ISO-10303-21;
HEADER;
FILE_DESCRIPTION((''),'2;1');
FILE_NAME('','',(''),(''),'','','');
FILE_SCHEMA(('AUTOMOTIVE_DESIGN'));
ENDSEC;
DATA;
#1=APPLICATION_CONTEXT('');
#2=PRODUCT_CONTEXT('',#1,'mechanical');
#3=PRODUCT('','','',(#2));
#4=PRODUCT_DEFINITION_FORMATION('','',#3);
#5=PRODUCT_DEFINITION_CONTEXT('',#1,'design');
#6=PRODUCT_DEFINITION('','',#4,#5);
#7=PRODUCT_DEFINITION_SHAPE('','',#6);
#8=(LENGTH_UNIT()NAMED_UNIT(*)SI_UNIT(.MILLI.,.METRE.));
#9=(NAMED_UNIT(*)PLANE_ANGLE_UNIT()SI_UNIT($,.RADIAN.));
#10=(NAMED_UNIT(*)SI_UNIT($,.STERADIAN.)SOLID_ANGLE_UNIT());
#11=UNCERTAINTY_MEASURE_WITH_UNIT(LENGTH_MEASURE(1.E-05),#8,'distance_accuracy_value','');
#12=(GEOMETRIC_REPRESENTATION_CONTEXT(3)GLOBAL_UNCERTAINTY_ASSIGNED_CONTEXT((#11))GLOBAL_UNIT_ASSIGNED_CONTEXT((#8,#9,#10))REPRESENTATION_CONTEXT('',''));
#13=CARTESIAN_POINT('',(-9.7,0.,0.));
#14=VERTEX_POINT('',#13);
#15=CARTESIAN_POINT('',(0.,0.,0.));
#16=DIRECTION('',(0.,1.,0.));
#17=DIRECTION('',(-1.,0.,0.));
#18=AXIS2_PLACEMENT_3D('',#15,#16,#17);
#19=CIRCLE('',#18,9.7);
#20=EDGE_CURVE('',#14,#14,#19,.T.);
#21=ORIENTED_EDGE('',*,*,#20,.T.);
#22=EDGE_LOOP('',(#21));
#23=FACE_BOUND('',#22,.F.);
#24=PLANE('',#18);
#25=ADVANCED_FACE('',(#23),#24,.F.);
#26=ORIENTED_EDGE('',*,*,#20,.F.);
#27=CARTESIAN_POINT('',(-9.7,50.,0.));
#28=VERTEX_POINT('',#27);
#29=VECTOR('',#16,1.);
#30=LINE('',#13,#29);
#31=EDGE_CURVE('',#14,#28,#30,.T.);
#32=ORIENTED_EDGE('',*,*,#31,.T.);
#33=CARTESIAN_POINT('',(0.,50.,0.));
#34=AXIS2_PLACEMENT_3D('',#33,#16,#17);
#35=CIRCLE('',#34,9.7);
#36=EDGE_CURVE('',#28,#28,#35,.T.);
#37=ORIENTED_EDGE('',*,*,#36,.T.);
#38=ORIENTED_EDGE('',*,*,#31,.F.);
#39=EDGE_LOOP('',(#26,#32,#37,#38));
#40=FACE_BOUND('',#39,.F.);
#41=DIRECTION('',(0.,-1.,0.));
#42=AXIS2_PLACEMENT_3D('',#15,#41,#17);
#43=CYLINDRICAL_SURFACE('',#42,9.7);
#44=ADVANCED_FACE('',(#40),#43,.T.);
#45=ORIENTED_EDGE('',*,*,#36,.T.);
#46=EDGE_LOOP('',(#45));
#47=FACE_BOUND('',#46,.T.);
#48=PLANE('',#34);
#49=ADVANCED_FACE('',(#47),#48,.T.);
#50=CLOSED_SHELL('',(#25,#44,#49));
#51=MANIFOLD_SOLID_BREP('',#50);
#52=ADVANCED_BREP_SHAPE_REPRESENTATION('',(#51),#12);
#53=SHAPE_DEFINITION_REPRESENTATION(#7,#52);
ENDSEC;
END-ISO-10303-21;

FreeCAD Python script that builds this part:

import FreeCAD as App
import Part
import Sketcher

doc = App.newDocument("Part")
body = doc.addObject("PartDesign::Body", "Body")

# Sketch on XZ plane
sketch1 = body.newObject("Sketcher::SketchObject", "Sketch")
sketch1.AttachmentSupport = (doc.getObject("XZ_Plane"), [""])
sketch1.MapMode = "FlatFace"
sketch1.addGeometry(Part.Circle(App.Vector(0, 0, 0), App.Vector(0, 0, 1), 10), False)
sketch1.addConstraint([
    Sketcher.Constraint("Coincident", 0, 3, -1, 1),
    Sketcher.Constraint("Diameter", 0, 19.4),
])
pad1 = body.newObject("PartDesign::Pad", "Pad")
pad1.Profile = sketch1
pad1.Length = 50
pad1.Reversed = True

doc.recompute()
